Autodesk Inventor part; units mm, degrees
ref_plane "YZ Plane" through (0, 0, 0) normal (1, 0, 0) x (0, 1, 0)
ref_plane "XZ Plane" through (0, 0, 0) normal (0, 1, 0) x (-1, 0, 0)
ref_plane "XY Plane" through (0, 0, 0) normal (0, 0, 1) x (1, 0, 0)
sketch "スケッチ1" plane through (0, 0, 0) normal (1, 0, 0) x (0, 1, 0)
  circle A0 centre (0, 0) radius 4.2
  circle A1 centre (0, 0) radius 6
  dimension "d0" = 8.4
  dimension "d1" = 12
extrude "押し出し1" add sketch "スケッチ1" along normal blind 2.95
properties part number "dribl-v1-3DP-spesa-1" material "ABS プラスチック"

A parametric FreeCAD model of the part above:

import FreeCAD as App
import Part
import Sketcher
from FreeCAD import Vector

doc = App.newDocument("Part")
body = doc.addObject("PartDesign::Body", "Body")

sketch1 = doc.addObject("Sketcher::SketchObject", "Sketch")
body.addObject(sketch1)
sketch1.AttachmentSupport = (doc.YZ_Plane, [""])
sketch1.MapMode = "FlatFace"
sketch1.addGeometry(Part.Circle(Vector(0, 0, 0), Vector(0, 0, 1), 6), False)
sketch1.addGeometry(Part.Circle(Vector(0, 0, 0), Vector(0, 0, 1), 4.2), False)
sketch1.addConstraint(Sketcher.Constraint("Coincident", 0, 3, -1, 1))
sketch1.addConstraint(Sketcher.Constraint("Coincident", 1, 3, -1, 1))
sketch1.addConstraint(Sketcher.Constraint("Diameter", 0, 12.0))
sketch1.addConstraint(Sketcher.Constraint("Diameter", 1, 8.4))
pad1 = doc.addObject("PartDesign::Pad", "Pad")
body.addObject(pad1)
pad1.Profile = sketch1
pad1.Length = 2.95

doc.recompute()
